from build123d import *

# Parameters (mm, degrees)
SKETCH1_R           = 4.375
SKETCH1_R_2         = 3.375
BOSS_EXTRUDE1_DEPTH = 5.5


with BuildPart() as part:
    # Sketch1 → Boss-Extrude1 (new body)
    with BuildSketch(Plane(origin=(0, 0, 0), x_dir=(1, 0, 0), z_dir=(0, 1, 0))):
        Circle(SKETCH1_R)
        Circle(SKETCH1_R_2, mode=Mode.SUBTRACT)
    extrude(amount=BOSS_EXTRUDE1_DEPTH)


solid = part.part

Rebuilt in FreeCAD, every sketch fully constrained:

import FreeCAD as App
import Part
import Sketcher
from FreeCAD import Vector
Q = App.Units.Quantity

doc = App.newDocument("Part")
params = doc.addObject("Spreadsheet::Sheet", "Params")
for row, (alias, value) in enumerate([
    ("sketch1_diameter", "8.75 mm"),
    ("sketch1_diameter2", "6.75 mm"),
    ("pad1_length", "5.5 mm"),
], start=1):
    params.set(f"A{row}", alias)
    params.set(f"B{row}", "=" + value)
    params.setAlias(f"B{row}", alias)

body = doc.addObject("PartDesign::Body", "Body")

sketch1 = body.newObject("Sketcher::SketchObject", "Sketch")
sketch1.AttachmentSupport = (doc.getObject("XZ_Plane"), [""])
sketch1.MapMode = "FlatFace"
sketch1.addGeometry([
    Part.Circle(Vector(0, 0, 0), Vector(0, 0, 1), 4.4),
    Part.Circle(Vector(0, 0, 0), Vector(0, 0, 1), 3.4),
], False)
sketch1.addConstraint([
    Sketcher.Constraint("Coincident", 0, 3, -1, 1),
    Sketcher.Constraint("Coincident", 1, 3, -1, 1),
    Sketcher.Constraint("Diameter", 0, Q("8.75 mm")),
    Sketcher.Constraint("Diameter", 1, Q("6.75 mm")),
])
sketch1.setExpression("Constraints[2]", "Params.sketch1_diameter")
sketch1.setExpression("Constraints[3]", "Params.sketch1_diameter2")
pad1 = body.newObject("PartDesign::Pad", "Pad")
pad1.Profile = sketch1
pad1.setExpression("Length", "Params.pad1_length")
pad1.Reversed = True

doc.recompute()
